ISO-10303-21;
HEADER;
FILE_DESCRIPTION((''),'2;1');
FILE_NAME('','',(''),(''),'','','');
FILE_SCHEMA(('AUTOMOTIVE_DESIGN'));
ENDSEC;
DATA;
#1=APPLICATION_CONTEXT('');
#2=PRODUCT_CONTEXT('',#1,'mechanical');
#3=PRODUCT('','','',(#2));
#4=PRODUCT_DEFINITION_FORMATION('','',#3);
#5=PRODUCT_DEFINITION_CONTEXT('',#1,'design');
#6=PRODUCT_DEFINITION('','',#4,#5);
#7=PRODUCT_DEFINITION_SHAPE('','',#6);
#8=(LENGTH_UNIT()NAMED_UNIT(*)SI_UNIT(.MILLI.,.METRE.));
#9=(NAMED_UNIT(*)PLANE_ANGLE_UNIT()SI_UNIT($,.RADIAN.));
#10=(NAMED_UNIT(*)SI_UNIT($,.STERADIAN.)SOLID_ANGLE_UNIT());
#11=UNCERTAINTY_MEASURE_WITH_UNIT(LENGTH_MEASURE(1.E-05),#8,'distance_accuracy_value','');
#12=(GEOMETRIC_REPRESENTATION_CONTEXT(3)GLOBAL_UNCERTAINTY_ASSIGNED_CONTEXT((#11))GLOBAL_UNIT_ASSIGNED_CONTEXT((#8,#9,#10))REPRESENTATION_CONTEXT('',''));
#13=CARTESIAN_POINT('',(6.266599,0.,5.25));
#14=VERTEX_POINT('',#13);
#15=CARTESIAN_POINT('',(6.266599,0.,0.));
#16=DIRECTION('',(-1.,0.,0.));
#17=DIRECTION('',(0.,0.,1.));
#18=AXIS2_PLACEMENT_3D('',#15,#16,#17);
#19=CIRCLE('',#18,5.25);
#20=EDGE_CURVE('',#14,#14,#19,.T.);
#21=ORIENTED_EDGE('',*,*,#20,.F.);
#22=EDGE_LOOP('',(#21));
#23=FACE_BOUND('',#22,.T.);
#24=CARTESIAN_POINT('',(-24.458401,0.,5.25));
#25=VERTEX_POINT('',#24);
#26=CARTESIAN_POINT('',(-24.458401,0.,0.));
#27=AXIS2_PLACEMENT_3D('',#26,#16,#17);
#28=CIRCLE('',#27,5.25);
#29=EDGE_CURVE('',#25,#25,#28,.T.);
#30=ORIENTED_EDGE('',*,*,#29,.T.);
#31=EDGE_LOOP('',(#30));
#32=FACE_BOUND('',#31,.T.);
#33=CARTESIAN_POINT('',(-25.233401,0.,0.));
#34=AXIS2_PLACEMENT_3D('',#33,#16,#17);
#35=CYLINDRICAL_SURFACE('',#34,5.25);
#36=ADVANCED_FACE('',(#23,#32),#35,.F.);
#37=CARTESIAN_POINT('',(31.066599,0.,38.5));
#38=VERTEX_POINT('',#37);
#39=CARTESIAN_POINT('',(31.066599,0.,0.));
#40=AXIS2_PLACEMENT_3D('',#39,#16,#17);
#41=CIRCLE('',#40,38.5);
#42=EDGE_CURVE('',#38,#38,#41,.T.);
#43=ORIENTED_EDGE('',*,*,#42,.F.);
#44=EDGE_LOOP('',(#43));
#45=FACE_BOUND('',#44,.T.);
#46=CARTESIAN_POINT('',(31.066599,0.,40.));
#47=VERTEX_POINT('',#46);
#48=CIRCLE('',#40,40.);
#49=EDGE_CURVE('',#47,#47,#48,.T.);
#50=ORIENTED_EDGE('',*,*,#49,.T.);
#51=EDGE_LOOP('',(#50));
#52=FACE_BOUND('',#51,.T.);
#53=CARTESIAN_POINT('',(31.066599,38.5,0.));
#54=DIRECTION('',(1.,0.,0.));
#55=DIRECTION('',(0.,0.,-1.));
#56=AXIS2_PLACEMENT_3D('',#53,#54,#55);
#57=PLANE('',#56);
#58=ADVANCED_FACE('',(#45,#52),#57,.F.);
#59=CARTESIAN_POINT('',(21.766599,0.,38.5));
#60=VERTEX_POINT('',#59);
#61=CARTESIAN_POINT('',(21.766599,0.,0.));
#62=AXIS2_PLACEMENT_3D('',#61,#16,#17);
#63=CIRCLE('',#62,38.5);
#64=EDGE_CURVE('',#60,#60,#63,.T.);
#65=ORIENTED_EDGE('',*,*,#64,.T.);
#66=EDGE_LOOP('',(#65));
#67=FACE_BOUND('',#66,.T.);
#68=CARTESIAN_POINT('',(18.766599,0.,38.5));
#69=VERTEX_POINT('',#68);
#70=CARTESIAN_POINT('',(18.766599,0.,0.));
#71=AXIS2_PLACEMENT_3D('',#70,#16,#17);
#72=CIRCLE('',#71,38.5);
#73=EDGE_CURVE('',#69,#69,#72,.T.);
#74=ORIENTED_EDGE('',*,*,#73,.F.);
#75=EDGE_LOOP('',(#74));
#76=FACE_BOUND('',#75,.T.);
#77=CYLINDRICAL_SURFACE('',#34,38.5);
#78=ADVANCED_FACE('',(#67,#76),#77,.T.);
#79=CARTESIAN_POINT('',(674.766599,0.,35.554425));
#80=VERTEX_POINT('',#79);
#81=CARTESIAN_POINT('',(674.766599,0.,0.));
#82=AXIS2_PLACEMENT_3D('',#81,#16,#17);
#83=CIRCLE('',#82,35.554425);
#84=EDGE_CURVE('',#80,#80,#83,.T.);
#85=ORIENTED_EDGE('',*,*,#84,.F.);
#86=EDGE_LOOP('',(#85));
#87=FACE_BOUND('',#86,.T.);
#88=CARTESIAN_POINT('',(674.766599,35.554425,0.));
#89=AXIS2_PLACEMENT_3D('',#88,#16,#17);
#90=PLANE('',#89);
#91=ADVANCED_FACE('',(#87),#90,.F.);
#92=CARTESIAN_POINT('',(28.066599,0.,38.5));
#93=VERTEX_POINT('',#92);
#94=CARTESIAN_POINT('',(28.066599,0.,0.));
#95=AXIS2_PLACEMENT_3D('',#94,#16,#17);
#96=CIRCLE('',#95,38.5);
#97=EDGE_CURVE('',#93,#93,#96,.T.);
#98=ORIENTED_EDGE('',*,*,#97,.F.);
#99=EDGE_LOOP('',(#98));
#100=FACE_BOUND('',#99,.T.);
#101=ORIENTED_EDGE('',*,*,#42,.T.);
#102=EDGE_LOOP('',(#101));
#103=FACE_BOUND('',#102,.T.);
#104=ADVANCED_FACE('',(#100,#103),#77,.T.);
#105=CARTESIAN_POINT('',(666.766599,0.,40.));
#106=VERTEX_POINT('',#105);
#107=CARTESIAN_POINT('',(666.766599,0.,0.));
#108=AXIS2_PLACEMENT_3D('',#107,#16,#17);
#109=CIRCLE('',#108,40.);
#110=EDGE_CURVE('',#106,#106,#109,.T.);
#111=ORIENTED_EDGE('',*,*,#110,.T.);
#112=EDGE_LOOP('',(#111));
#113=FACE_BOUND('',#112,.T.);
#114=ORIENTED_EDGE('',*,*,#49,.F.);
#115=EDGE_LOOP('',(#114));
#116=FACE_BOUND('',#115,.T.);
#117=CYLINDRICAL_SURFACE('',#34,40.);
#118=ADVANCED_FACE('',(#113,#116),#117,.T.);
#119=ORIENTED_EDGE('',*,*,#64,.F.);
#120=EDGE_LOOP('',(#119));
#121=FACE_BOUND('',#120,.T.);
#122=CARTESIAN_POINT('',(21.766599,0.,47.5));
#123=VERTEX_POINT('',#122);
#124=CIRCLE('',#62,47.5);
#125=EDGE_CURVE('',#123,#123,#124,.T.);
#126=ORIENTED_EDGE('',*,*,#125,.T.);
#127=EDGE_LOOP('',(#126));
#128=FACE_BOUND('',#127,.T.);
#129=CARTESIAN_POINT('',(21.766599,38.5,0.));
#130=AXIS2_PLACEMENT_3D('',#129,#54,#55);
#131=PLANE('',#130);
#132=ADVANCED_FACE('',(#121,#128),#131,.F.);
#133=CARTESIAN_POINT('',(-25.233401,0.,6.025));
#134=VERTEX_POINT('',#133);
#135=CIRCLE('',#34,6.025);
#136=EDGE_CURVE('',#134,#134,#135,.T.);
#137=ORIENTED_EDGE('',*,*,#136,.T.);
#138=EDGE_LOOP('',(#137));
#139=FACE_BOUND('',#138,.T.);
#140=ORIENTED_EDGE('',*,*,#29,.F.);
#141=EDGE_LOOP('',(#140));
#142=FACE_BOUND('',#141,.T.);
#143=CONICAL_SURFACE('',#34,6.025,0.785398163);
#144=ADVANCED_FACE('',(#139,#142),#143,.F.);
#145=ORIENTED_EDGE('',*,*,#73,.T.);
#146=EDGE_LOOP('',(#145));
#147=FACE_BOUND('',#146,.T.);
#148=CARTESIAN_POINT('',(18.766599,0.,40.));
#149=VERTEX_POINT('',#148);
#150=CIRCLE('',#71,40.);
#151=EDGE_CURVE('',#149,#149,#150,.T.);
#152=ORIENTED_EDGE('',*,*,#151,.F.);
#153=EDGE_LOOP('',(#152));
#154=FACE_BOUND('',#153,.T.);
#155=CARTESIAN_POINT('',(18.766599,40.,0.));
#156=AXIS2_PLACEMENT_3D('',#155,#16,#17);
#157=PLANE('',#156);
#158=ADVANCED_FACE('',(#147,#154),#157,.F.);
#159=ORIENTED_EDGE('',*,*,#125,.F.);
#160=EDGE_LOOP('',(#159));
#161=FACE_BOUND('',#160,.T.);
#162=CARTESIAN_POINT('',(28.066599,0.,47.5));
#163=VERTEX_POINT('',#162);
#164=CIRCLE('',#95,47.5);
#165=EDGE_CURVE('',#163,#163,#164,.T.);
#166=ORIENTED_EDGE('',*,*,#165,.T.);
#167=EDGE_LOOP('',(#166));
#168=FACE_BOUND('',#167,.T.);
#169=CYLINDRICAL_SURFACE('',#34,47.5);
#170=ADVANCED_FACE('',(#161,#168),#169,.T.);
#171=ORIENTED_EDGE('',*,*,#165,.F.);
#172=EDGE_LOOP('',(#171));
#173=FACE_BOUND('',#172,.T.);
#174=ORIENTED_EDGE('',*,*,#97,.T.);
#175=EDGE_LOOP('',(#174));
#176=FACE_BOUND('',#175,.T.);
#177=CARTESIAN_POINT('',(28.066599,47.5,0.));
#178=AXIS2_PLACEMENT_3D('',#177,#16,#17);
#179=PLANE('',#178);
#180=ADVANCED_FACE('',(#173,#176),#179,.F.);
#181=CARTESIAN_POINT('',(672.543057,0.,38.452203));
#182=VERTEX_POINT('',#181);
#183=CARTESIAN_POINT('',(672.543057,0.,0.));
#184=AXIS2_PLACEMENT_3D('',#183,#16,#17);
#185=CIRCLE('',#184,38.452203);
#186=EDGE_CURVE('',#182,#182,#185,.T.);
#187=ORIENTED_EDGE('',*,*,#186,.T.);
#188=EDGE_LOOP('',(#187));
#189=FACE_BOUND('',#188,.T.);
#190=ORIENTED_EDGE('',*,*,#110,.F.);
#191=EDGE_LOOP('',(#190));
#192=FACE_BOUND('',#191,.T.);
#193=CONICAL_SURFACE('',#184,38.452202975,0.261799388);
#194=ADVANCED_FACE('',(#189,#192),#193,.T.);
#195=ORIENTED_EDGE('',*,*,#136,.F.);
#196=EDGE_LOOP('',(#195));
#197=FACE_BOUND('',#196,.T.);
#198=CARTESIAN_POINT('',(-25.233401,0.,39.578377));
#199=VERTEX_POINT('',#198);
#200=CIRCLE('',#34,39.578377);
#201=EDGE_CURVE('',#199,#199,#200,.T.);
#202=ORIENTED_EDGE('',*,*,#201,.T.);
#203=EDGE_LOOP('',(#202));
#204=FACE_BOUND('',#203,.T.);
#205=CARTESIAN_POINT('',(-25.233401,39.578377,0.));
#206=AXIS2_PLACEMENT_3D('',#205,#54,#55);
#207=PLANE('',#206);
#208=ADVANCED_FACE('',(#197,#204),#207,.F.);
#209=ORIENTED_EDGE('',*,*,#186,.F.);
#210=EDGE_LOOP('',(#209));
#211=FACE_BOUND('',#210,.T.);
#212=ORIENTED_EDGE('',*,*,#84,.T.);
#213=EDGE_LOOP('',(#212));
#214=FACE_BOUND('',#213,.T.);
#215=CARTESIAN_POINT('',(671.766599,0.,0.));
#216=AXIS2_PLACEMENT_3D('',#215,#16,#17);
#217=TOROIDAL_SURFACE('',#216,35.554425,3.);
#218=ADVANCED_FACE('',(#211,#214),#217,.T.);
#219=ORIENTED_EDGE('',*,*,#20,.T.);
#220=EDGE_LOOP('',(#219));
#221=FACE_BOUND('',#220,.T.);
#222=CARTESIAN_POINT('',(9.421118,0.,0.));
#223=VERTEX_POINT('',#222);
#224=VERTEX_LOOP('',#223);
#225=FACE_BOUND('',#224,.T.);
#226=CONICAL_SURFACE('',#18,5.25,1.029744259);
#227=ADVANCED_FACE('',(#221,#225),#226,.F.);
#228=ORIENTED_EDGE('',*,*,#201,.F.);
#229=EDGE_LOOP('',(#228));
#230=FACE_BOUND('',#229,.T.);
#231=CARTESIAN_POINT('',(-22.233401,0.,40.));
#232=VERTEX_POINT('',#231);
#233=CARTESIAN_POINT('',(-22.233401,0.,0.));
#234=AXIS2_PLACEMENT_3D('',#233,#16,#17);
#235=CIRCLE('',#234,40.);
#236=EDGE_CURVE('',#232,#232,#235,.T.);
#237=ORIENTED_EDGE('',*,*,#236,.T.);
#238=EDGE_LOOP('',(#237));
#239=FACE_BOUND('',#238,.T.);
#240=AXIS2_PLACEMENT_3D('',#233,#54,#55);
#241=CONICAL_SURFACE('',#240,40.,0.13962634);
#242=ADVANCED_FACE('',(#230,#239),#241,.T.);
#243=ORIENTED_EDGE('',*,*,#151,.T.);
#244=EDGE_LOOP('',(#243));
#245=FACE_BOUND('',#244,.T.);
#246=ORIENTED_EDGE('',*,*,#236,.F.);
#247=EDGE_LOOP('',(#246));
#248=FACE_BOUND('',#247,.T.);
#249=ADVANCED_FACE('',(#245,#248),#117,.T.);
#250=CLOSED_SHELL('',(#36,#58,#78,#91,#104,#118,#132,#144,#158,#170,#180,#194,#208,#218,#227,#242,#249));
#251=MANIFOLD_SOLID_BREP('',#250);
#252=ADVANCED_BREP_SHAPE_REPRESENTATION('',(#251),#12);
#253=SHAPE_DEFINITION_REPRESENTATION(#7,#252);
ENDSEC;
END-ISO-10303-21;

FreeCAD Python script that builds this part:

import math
import FreeCAD as App
import Part
import Sketcher
Q = App.Units.Quantity

doc = App.newDocument("Part")
body = doc.addObject("PartDesign::Body", "Body")

# Sketch on XY plane
sketch1 = body.newObject("Sketcher::SketchObject", "Sketch")
sketch1.AttachmentSupport = (doc.getObject("XY_Plane"), [""])
sketch1.MapMode = "FlatFace"
sketch1.addGeometry(Part.LineSegment(App.Vector(18.8, 40, 0), App.Vector(-22.2, 40, 0)), False)
sketch1.addGeometry(Part.LineSegment(App.Vector(-22.2, 40, 0), App.Vector(-25.2, 39.6, 0)), False)
sketch1.addGeometry(Part.LineSegment(App.Vector(-25.2, 39.6, 0), App.Vector(-25.2, 0, 0)), False)
sketch1.addGeometry(Part.LineSegment(App.Vector(-25.2, 0, 0), App.Vector(674.8, 0, 0)), False)
sketch1.addGeometry(Part.LineSegment(App.Vector(674.8, 0, 0), App.Vector(674.8, 35.6, 0)), False)
sketch1.addGeometry(Part.ArcOfCircle(Part.Circle(App.Vector(671.8, 35.6, 0), App.Vector(0, 0, 1), 3), math.radians(0), math.radians(75)), False)
sketch1.addGeometry(Part.LineSegment(App.Vector(672.5, 38.5, 0), App.Vector(666.8, 40, 0)), False)
sketch1.addGeometry(Part.LineSegment(App.Vector(666.8, 40, 0), App.Vector(31.1, 40, 0)), False)
sketch1.addGeometry(Part.LineSegment(App.Vector(31.1, 40, 0), App.Vector(31.1, 38.5, 0)), False)
sketch1.addGeometry(Part.LineSegment(App.Vector(31.1, 38.5, 0), App.Vector(28.1, 38.5, 0)), False)
sketch1.addGeometry(Part.LineSegment(App.Vector(28.1, 38.5, 0), App.Vector(28.1, 47.5, 0)), False)
sketch1.addGeometry(Part.LineSegment(App.Vector(28.1, 47.5, 0), App.Vector(21.8, 47.5, 0)), False)
sketch1.addGeometry(Part.LineSegment(App.Vector(21.8, 47.5, 0), App.Vector(21.8, 38.5, 0)), False)
sketch1.addGeometry(Part.LineSegment(App.Vector(21.8, 38.5, 0), App.Vector(18.8, 38.5, 0)), False)
sketch1.addGeometry(Part.LineSegment(App.Vector(18.8, 38.5, 0), App.Vector(18.8, 40, 0)), False)
sketch1.addConstraint(Sketcher.Constraint("Coincident", 0, 2, 1, 1))
sketch1.addConstraint(Sketcher.Constraint("Coincident", 1, 2, 2, 1))
sketch1.addConstraint(Sketcher.Constraint("Coincident", 2, 2, 3, 1))
sketch1.addConstraint(Sketcher.Constraint("Coincident", 3, 2, 4, 1))
sketch1.addConstraint(Sketcher.Constraint("Tangent", 4, 2, 5, 1))
sketch1.addConstraint(Sketcher.Constraint("Tangent", 5, 2, 6, 1))
sketch1.addConstraint(Sketcher.Constraint("Coincident", 6, 2, 7, 1))
sketch1.addConstraint(Sketcher.Constraint("Coincident", 7, 2, 8, 1))
sketch1.addConstraint(Sketcher.Constraint("Coincident", 8, 2, 9, 1))
sketch1.addConstraint(Sketcher.Constraint("Coincident", 9, 2, 10, 1))
sketch1.addConstraint(Sketcher.Constraint("Coincident", 10, 2, 11, 1))
sketch1.addConstraint(Sketcher.Constraint("Coincident", 11, 2, 12, 1))
sketch1.addConstraint(Sketcher.Constraint("Coincident", 12, 2, 13, 1))
sketch1.addConstraint(Sketcher.Constraint("Coincident", 13, 2, 14, 1))
sketch1.addConstraint(Sketcher.Constraint("Coincident", 14, 2, 0, 1))
sketch1.addConstraint(Sketcher.Constraint("Horizontal", 0))
sketch1.addConstraint(Sketcher.Constraint("Vertical", 2))
sketch1.addConstraint(Sketcher.Constraint("Horizontal", 3))
sketch1.addConstraint(Sketcher.Constraint("Vertical", 4))
sketch1.addConstraint(Sketcher.Constraint("Horizontal", 7))
sketch1.addConstraint(Sketcher.Constraint("Vertical", 8))
sketch1.addConstraint(Sketcher.Constraint("Horizontal", 9))
sketch1.addConstraint(Sketcher.Constraint("Vertical", 10))
sketch1.addConstraint(Sketcher.Constraint("Horizontal", 11))
sketch1.addConstraint(Sketcher.Constraint("Vertical", 12))
sketch1.addConstraint(Sketcher.Constraint("Horizontal", 13))
sketch1.addConstraint(Sketcher.Constraint("Vertical", 14))
sketch1.addConstraint(Sketcher.Constraint("PointOnObject", 2, 2, -1))
sketch1.addConstraint(Sketcher.Constraint("Horizontal", 0, 2, 6, 2))
sketch1.addConstraint(Sketcher.Constraint("Horizontal", 9, 2, 12, 2))
sketch1.addConstraint(Sketcher.Constraint("Equal", 9, 13))
sketch1.addConstraint(Sketcher.Constraint("Radius", 5, Q("3 mm")))
sketch1.addConstraint(Sketcher.Constraint("DistanceX", 0, 2, 0, 1, Q("41 mm")))
sketch1.addConstraint(Sketcher.Constraint("DistanceX", 3, 1, 3, 2, Q("700 mm")))
sketch1.addConstraint(Sketcher.Constraint("DistanceX", 9, 2, 9, 1, Q("3 mm")))
sketch1.addConstraint(Sketcher.Constraint("DistanceY", 10, 1, 10, 2, Q("9 mm")))
sketch1.addConstraint(Sketcher.Constraint("Angle", 1, Q("-172 deg")))
sketch1.addConstraint(Sketcher.Constraint("Angle", 6, Q("165 deg")))
sketch1.addConstraint(Sketcher.Constraint("DistanceX", 7, 2, 7, 1, Q("635.7 mm")))
sketch1.addConstraint(Sketcher.Constraint("DistanceX", 11, 2, 11, 1, Q("6.3 mm")))
sketch1.addConstraint(Sketcher.Constraint("DistanceY", 8, 2, 8, 1, Q("1.5 mm")))
sketch1.addConstraint(Sketcher.Constraint("DistanceY", -1, 1, 0, 2, Q("40 mm")))
sketch1.addConstraint(Sketcher.Constraint("DistanceX", 0, 2, 5, 3, Q("694 mm")))
sketch1.addConstraint(Sketcher.Constraint("DistanceX", -1, 1, 5, 3, Q("671.766599 mm")))
revolution = body.newObject("PartDesign::Revolution", "Revolution")
revolution.Profile = sketch1
revolution.ReferenceAxis = (sketch1, ["H_Axis"])
revolution.Angle = 360

# Sketch on YZ plane
sketch2 = body.newObject("Sketcher::SketchObject", "Sketch001")
sketch2.AttachmentSupport = (doc.getObject("YZ_Plane"), [""])
sketch2.MapMode = "FlatFace"
sketch2.AttachmentOffset = App.Placement(App.Vector(0, 0, -25.233401), App.Rotation())
sketch2.addGeometry(Part.Circle(App.Vector(0, 0, 0), App.Vector(0, 0, 1), 5), False)
sketch2.addConstraint(Sketcher.Constraint("Coincident", 0, 3, -1, 1))
sketch2.addConstraint(Sketcher.Constraint("Diameter", 0, Q("10.5 mm")))
doc.recompute()
hole = body.newObject("PartDesign::Hole", "Hole")
hole.Profile = sketch2
hole.ThreadType = "None"
hole.Diameter = 10.5
hole.DepthType = "Dimension"
hole.Depth = 31.5
hole.DrillPoint = "Angled"
hole.DrillPointAngle = 118
hole.HoleCutType = "Countersink"
hole.HoleCutDiameter = 12.05
hole.HoleCutCountersinkAngle = 90
hole.Reversed = True

doc.recompute()
